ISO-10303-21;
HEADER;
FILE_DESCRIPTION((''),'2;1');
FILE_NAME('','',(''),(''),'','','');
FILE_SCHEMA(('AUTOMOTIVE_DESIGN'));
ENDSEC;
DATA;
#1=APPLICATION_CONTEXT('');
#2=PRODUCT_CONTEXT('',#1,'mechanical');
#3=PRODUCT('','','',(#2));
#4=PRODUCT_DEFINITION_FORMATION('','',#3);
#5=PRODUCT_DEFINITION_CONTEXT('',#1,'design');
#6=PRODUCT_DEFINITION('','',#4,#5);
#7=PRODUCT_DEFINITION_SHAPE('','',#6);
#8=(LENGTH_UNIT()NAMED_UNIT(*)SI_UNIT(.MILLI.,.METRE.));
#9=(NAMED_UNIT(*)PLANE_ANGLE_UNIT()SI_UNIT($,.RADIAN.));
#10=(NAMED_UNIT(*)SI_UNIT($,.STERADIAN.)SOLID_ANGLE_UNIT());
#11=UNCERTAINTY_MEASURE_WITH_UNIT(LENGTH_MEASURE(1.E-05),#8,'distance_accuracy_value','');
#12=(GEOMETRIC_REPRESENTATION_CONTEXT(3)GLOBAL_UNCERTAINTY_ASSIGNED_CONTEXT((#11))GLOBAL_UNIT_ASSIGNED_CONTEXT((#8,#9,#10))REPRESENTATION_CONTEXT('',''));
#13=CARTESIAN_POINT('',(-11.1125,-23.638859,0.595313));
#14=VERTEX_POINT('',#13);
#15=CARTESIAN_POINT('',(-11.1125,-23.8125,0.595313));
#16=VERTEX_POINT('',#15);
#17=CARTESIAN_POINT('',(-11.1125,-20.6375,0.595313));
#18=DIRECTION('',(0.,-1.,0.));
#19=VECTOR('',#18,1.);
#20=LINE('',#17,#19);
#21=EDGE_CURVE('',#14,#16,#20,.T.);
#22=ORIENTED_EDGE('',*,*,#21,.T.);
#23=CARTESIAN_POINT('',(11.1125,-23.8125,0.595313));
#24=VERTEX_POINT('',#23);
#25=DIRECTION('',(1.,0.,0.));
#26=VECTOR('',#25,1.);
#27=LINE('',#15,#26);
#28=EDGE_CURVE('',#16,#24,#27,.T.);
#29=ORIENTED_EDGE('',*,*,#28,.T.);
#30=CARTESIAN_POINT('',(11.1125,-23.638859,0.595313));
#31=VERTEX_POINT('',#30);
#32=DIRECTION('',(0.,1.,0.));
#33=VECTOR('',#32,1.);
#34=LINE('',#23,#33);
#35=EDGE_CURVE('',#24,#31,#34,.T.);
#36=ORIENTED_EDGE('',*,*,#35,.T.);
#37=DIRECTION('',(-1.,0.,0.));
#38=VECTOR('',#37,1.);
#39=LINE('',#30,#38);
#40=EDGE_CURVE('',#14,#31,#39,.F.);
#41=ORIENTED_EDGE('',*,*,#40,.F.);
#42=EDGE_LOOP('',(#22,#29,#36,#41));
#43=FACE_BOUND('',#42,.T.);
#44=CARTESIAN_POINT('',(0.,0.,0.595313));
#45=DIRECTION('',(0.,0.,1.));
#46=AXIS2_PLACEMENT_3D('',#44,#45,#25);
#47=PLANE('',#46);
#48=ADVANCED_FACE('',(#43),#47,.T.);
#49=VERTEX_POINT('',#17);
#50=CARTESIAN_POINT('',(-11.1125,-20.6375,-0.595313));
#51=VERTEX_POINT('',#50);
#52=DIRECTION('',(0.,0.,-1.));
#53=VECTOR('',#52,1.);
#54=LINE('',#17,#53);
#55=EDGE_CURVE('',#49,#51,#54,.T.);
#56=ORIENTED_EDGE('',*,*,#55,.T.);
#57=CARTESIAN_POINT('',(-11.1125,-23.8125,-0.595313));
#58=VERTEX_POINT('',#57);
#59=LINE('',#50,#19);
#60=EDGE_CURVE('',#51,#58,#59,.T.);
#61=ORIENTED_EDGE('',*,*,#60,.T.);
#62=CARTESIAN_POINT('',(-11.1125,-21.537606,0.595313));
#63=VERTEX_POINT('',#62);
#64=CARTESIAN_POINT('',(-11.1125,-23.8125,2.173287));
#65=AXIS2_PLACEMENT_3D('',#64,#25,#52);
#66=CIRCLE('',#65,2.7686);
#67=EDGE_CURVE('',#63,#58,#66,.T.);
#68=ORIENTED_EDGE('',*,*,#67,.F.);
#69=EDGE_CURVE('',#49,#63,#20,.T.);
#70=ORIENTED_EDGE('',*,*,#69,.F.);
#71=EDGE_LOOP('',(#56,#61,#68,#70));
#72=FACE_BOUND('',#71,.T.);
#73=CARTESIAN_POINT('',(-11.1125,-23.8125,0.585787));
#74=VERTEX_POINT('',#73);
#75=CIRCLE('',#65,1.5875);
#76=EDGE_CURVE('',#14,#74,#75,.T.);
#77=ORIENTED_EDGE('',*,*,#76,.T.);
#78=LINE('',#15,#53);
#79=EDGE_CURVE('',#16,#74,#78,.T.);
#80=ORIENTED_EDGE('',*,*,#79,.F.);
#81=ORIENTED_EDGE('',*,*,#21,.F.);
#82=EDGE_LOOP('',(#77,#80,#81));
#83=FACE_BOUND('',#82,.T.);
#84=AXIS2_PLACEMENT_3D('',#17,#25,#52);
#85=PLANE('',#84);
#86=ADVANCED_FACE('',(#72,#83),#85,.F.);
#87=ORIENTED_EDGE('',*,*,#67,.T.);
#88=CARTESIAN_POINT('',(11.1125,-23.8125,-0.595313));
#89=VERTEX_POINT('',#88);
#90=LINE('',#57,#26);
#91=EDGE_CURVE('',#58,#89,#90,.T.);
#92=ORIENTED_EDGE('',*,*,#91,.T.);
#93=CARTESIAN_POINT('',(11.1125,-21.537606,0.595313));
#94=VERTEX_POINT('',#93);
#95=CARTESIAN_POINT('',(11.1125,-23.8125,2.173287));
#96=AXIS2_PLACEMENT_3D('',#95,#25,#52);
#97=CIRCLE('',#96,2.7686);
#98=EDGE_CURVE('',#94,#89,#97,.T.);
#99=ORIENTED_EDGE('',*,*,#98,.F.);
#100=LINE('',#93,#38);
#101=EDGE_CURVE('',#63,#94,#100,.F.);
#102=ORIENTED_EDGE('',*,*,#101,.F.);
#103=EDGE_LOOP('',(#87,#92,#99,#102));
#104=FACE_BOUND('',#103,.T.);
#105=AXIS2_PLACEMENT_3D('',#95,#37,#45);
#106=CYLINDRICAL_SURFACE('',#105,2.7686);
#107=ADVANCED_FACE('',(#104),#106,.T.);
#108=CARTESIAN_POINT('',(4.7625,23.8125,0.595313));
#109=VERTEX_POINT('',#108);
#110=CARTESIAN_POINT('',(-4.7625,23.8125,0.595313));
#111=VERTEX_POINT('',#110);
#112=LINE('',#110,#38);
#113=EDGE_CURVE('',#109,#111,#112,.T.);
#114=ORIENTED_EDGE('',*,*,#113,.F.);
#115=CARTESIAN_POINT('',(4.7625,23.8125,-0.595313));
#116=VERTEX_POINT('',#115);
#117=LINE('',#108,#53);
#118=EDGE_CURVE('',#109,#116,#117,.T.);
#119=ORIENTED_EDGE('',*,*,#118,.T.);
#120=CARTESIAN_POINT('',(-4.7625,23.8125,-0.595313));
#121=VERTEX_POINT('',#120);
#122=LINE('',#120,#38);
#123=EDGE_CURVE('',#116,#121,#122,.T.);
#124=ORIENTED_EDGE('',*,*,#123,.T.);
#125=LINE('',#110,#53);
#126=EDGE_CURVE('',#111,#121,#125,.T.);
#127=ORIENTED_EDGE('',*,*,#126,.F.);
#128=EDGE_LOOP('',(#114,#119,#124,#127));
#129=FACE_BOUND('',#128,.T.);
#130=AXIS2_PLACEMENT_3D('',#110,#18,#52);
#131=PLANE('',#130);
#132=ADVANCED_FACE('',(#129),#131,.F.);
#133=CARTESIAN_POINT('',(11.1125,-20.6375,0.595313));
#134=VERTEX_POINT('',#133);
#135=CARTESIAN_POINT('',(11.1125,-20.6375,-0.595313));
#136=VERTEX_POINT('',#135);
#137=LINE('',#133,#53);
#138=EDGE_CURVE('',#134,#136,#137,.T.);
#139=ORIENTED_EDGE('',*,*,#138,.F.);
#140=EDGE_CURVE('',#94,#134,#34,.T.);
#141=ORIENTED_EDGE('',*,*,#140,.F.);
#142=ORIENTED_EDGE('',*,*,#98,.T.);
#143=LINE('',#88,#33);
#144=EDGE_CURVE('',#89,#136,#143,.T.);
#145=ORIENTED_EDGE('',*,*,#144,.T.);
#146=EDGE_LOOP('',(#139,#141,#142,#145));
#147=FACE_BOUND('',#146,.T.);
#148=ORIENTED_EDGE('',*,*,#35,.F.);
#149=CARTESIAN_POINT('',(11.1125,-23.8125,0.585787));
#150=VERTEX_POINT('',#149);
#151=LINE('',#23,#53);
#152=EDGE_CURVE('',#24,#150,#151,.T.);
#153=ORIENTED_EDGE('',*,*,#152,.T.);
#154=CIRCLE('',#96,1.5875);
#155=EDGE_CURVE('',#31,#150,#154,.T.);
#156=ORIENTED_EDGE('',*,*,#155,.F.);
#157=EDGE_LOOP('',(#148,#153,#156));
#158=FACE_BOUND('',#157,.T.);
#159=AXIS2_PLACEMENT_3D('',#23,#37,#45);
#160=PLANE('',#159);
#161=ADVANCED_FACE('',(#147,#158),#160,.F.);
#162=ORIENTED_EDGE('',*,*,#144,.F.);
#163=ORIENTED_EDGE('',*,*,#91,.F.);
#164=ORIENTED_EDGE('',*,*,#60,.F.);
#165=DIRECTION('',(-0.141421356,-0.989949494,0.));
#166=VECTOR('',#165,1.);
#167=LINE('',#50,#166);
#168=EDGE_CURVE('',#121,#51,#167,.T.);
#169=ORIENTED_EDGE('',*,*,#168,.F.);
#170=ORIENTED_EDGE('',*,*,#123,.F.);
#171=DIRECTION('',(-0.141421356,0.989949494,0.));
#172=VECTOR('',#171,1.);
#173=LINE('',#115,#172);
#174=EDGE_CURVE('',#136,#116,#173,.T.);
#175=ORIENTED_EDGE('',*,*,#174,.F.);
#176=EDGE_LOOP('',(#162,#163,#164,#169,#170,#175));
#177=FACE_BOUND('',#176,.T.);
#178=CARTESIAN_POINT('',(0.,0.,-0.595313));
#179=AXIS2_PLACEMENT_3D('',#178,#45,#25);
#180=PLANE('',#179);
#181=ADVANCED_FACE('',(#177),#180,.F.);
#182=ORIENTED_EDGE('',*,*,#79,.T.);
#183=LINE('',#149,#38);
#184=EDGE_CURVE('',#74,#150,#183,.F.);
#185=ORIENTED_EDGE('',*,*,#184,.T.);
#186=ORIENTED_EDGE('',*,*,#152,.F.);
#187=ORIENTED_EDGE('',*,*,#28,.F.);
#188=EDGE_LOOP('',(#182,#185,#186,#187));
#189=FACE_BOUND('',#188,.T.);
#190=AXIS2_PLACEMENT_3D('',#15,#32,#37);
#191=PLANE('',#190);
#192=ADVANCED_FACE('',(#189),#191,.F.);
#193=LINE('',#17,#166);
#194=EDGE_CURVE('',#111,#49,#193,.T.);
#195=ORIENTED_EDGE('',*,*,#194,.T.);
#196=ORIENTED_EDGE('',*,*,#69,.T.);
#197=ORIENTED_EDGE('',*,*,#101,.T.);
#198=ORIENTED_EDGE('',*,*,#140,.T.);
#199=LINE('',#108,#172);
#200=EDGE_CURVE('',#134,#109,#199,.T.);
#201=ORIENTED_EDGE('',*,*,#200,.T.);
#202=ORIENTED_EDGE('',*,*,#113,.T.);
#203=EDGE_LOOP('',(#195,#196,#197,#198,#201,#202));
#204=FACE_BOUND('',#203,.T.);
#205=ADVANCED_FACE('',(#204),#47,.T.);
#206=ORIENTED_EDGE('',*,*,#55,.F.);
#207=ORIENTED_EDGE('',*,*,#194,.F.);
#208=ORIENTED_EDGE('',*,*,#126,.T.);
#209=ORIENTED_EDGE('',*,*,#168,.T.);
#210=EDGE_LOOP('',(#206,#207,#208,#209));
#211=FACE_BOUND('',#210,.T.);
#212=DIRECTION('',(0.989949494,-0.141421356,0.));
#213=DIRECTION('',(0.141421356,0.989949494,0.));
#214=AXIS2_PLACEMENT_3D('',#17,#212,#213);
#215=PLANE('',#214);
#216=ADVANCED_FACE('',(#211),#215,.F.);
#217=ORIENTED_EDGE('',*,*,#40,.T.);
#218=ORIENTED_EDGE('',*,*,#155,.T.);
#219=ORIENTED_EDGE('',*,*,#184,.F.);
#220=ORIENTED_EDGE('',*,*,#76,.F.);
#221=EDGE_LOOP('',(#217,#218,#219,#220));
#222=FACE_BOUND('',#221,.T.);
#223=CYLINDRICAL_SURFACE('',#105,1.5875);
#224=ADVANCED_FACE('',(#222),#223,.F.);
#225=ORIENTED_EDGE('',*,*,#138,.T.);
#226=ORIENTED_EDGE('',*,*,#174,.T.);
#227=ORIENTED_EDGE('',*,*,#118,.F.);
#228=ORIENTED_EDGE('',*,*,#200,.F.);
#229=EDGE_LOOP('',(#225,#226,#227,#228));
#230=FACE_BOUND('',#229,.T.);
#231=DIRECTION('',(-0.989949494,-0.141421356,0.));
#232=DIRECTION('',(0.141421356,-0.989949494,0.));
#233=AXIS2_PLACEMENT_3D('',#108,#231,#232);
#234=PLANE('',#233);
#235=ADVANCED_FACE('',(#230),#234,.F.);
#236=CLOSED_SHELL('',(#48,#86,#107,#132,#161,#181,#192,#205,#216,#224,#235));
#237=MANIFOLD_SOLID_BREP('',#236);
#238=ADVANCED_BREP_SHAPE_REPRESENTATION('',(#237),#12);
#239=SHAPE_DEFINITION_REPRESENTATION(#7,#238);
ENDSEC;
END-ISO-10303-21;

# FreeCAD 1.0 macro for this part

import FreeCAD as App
import Part
import Sketcher

V = App.Vector
Q = App.Units.Quantity


def add_polygon(sketch, points):
    """Adds a closed chain of lines whose ends are joined by coincident constraints."""
    first, n = sketch.GeometryCount, len(points)
    for a, b in zip(points, points[1:] + points[:1]):
        sketch.addGeometry(Part.LineSegment(App.Vector(*a, 0), App.Vector(*b, 0)), False)
    for i in range(n):
        sketch.addConstraint(Sketcher.Constraint("Coincident", first + i, 2, first + (i + 1) % n, 1))

doc = App.newDocument("Part")
body = doc.addObject("PartDesign::Body", "Body")

sketch1 = doc.addObject("Sketcher::SketchObject", "Sketch")
body.addObject(sketch1)
sketch1.AttachmentSupport = (doc.XY_Plane, [""])
sketch1.MapMode = "FlatFace"
add_polygon(sketch1, [(-4.8, 23.8), (-11.1, -20.6), (-11.1, -23.8), (11.1, -23.8), (11.1, -20.6), (4.8, 23.8)])
sketch1.addConstraint(Sketcher.Constraint("Vertical", 1))
sketch1.addConstraint(Sketcher.Constraint("Horizontal", 2))
sketch1.addConstraint(Sketcher.Constraint("Vertical", 3))
sketch1.addConstraint(Sketcher.Constraint("Horizontal", 5))
sketch1.addConstraint(Sketcher.Constraint("Symmetric", 0, 2, 3, 2, -2))
sketch1.addConstraint(Sketcher.Constraint("Equal", 0, 4))
sketch1.addConstraint(Sketcher.Constraint("DistanceX", 2, 1, 2, 2, Q("0.875 in")))
sketch1.addConstraint(Sketcher.Constraint("DistanceX", 5, 2, 5, 1, Q("0.375 in")))
sketch1.addConstraint(Sketcher.Constraint("DistanceY", 1, 2, 1, 1, Q("0.125 in")))
sketch1.addConstraint(Sketcher.Constraint("DistanceY", 3, 2, 4, 2, Q("1.75 in")))
sketch1.addConstraint(Sketcher.Constraint("DistanceY", 0, 2, -1, 1, Q("0.8125 in")))
pad1 = doc.addObject("PartDesign::Pad", "Pad")
body.addObject(pad1)
pad1.Profile = sketch1
pad1.Length = Q("0.046875 in")
pad1.Midplane = True

sketch2 = doc.addObject("Sketcher::SketchObject", "Sketch001")
body.addObject(sketch2)
sketch2.AttachmentSupport = (doc.YZ_Plane, [""])
sketch2.MapMode = "FlatFace"
sketch2.addGeometry(Part.Circle(V(-23.8, 2.2, 0), V(0, 0, 1), 2.8), False)
sketch2.addGeometry(Part.Circle(V(-23.8, 2.2, 0), V(0, 0, 1), 1.6), False)
sketch2.addConstraint(Sketcher.Constraint("Coincident", 1, 3, 0, 3))
sketch2.addConstraint(Sketcher.Constraint("Diameter", 0, Q("0.218 in")))
sketch2.addConstraint(Sketcher.Constraint("Diameter", 1, Q("0.125 in")))
sketch2.addConstraint(Sketcher.Constraint("DistanceX", 0, 3, -1, 1, Q("0.9375 in")))
sketch2.addConstraint(Sketcher.Constraint("DistanceY", -1, 1, 0, 3, Q("2.173287 mm")))
pad2 = doc.addObject("PartDesign::Pad", "Pad001")
body.addObject(pad2)
pad2.Profile = sketch2
pad2.Length = Q("0.875 in")
pad2.Midplane = True

doc.recompute()
